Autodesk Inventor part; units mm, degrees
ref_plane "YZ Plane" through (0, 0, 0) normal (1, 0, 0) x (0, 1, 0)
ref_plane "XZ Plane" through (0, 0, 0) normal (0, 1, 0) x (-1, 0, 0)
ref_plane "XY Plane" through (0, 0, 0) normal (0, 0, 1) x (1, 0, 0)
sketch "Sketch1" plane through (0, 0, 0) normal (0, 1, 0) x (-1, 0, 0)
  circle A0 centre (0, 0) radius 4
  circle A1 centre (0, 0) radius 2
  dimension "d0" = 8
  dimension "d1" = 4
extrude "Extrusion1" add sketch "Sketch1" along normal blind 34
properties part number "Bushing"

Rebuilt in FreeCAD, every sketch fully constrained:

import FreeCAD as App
import Part
import Sketcher
from FreeCAD import Vector
Q = App.Units.Quantity

doc = App.newDocument("Part")
params = doc.addObject("Spreadsheet::Sheet", "Params")
for row, (alias, value) in enumerate([
    ("sketch1_diameter", "8 mm"),
    ("sketch1_diameter2", "4 mm"),
    ("pad1_length", "34 mm"),
], start=1):
    params.set(f"A{row}", alias)
    params.set(f"B{row}", "=" + value)
    params.setAlias(f"B{row}", alias)

body = doc.addObject("PartDesign::Body", "Body")

# Sketch on XZ plane
sketch1 = doc.addObject("Sketcher::SketchObject", "Sketch")
body.addObject(sketch1)
sketch1.AttachmentSupport = (doc.XZ_Plane, [""])
sketch1.MapMode = "FlatFace"
sketch1.addGeometry(Part.Circle(Vector(0, 0, 0), Vector(0, 0, 1), 4), False)
sketch1.addGeometry(Part.Circle(Vector(0, 0, 0), Vector(0, 0, 1), 2), False)
sketch1.addConstraint(Sketcher.Constraint("Coincident", 0, 3, -1, 1))
sketch1.addConstraint(Sketcher.Constraint("Coincident", 1, 3, -1, 1))
sketch1.addConstraint(Sketcher.Constraint("Diameter", 0, Q("8 mm")))
sketch1.addConstraint(Sketcher.Constraint("Diameter", 1, Q("4 mm")))
sketch1.setExpression("Constraints[2]", "Params.sketch1_diameter")
sketch1.setExpression("Constraints[3]", "Params.sketch1_diameter2")
pad1 = doc.addObject("PartDesign::Pad", "Pad")
body.addObject(pad1)
pad1.Profile = sketch1
pad1.setExpression("Length", "Params.pad1_length")
pad1.Reversed = True

doc.recompute()
